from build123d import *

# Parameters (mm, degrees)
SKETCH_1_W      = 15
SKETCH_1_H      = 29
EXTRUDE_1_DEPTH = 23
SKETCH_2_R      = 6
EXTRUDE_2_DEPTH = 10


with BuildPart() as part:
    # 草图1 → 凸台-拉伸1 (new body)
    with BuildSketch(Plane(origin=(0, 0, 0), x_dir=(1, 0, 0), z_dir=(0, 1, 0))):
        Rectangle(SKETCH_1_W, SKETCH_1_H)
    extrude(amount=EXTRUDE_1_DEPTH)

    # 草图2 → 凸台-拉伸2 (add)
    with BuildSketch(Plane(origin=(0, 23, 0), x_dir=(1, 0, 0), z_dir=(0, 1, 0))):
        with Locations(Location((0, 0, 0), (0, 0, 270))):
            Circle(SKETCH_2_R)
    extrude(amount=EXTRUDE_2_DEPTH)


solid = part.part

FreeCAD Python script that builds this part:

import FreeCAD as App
import Part
import Sketcher
from FreeCAD import Vector

doc = App.newDocument("Part")
params = doc.addObject("Spreadsheet::Sheet", "Params")
for row, (alias, value) in enumerate([
    ("sketch1_width", "15 mm"),
    ("sketch1_height", "29 mm"),
    ("pad1_length", "23 mm"),
    ("sketch2_diameter", "12 mm"),
    ("pad2_length", "10 mm"),
], start=1):
    params.set(f"A{row}", alias)
    params.set(f"B{row}", "=" + value)
    params.setAlias(f"B{row}", alias)

body = doc.addObject("PartDesign::Body", "Body")

sketch1 = doc.addObject("Sketcher::SketchObject", "Sketch")
body.addObject(sketch1)
sketch1.AttachmentSupport = (doc.XZ_Plane, [""])
sketch1.MapMode = "FlatFace"
sketch1.addGeometry(Part.LineSegment(Vector(-8, -14, 0), Vector(-8, 14, 0)), False)
sketch1.addGeometry(Part.LineSegment(Vector(-8, 14, 0), Vector(8, 14, 0)), False)
sketch1.addGeometry(Part.LineSegment(Vector(8, 14, 0), Vector(8, -14, 0)), False)
sketch1.addGeometry(Part.LineSegment(Vector(8, -14, 0), Vector(-8, -14, 0)), False)
sketch1.addConstraint(Sketcher.Constraint("Coincident", 0, 2, 1, 1))
sketch1.addConstraint(Sketcher.Constraint("Coincident", 1, 2, 2, 1))
sketch1.addConstraint(Sketcher.Constraint("Coincident", 2, 2, 3, 1))
sketch1.addConstraint(Sketcher.Constraint("Coincident", 3, 2, 0, 1))
sketch1.addConstraint(Sketcher.Constraint("Vertical", 0))
sketch1.addConstraint(Sketcher.Constraint("Horizontal", 1))
sketch1.addConstraint(Sketcher.Constraint("Vertical", 2))
sketch1.addConstraint(Sketcher.Constraint("Horizontal", 3))
sketch1.addConstraint(Sketcher.Constraint("Symmetric", 0, 2, 2, 2, -1, 1))
sketch1.addConstraint(Sketcher.Constraint("DistanceX", 1, 1, 1, 2, 15.0))
sketch1.addConstraint(Sketcher.Constraint("DistanceY", 0, 1, 0, 2, 29.0))
sketch1.setExpression("Constraints[9]", "Params.sketch1_width")
sketch1.setExpression("Constraints[10]", "Params.sketch1_height")
pad1 = doc.addObject("PartDesign::Pad", "Pad")
body.addObject(pad1)
pad1.Profile = sketch1
pad1.setExpression("Length", "Params.pad1_length")
pad1.Reversed = True

sketch2 = doc.addObject("Sketcher::SketchObject", "Sketch001")
body.addObject(sketch2)
sketch2.AttachmentSupport = (doc.XZ_Plane, [""])
sketch2.MapMode = "FlatFace"
sketch2.AttachmentOffset = App.Placement(Vector(0, 0, -23), App.Rotation())
sketch2.addGeometry(Part.Circle(Vector(0, 0, 0), Vector(0, 0, 1), 6), False)
sketch2.addConstraint(Sketcher.Constraint("Coincident", 0, 3, -1, 1))
sketch2.addConstraint(Sketcher.Constraint("Diameter", 0, 12.0))
sketch2.setExpression("Constraints[1]", "Params.sketch2_diameter")
pad2 = doc.addObject("PartDesign::Pad", "Pad001")
body.addObject(pad2)
pad2.Profile = sketch2
pad2.setExpression("Length", "Params.pad2_length")
pad2.Reversed = True

doc.recompute()
